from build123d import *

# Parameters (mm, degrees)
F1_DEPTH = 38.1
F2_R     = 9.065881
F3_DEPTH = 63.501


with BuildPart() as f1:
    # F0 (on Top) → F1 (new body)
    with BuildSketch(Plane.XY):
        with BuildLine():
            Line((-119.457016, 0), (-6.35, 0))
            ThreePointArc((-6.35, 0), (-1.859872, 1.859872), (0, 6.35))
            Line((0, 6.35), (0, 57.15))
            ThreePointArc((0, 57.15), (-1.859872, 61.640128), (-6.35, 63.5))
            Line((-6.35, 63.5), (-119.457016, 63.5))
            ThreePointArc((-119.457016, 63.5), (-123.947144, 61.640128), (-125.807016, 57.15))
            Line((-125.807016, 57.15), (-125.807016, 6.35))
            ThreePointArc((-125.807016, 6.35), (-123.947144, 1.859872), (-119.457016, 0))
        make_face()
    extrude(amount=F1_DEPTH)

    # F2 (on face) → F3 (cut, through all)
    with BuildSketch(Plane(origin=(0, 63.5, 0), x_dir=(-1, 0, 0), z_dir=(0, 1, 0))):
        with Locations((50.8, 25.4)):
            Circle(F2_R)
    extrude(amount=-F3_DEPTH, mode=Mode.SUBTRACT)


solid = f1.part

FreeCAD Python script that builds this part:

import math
import FreeCAD as App
import Part
import Sketcher
from FreeCAD import Vector
Q = App.Units.Quantity

doc = App.newDocument("Part")
params = doc.addObject("Spreadsheet::Sheet", "Params")
for row, (alias, value) in enumerate([
    ("sketch1_height", "2 in"),
    ("sketch1_radius", "0.25 in"),
    ("pad1_length", "1.5 in"),
], start=1):
    params.set(f"A{row}", alias)
    params.set(f"B{row}", "=" + value)
    params.setAlias(f"B{row}", alias)

body = doc.addObject("PartDesign::Body", "Body")

sketch1 = body.newObject("Sketcher::SketchObject", "Sketch")
sketch1.AttachmentSupport = (doc.getObject("XY_Plane"), [""])
sketch1.MapMode = "FlatFace"
sketch1.addGeometry(Part.LineSegment(Vector(-119, 0, 0), Vector(-6, 0, 0)), False)
sketch1.addGeometry(Part.ArcOfCircle(Part.Circle(Vector(-6, 6, 0), Vector(0, 0, 1), 6), math.radians(-90), math.radians(0)), False)
sketch1.addGeometry(Part.LineSegment(Vector(0, 6, 0), Vector(0, 57, 0)), False)
sketch1.addGeometry(Part.ArcOfCircle(Part.Circle(Vector(-6, 57, 0), Vector(0, 0, 1), 6), math.radians(0), math.radians(90)), False)
sketch1.addGeometry(Part.LineSegment(Vector(-6, 64, 0), Vector(-119, 64, 0)), False)
sketch1.addGeometry(Part.ArcOfCircle(Part.Circle(Vector(-119, 57, 0), Vector(0, 0, 1), 6), math.radians(90), math.radians(180)), False)
sketch1.addGeometry(Part.LineSegment(Vector(-126, 57, 0), Vector(-126, 6, 0)), False)
sketch1.addGeometry(Part.ArcOfCircle(Part.Circle(Vector(-119, 6, 0), Vector(0, 0, 1), 6), math.radians(-180), math.radians(-90)), False)
sketch1.addConstraint(Sketcher.Constraint("Tangent", 0, 2, 1, 1))
sketch1.addConstraint(Sketcher.Constraint("Tangent", 1, 2, 2, 1))
sketch1.addConstraint(Sketcher.Constraint("Tangent", 2, 2, 3, 1))
sketch1.addConstraint(Sketcher.Constraint("Tangent", 3, 2, 4, 1))
sketch1.addConstraint(Sketcher.Constraint("Tangent", 4, 2, 5, 1))
sketch1.addConstraint(Sketcher.Constraint("Tangent", 5, 2, 6, 1))
sketch1.addConstraint(Sketcher.Constraint("Tangent", 6, 2, 7, 1))
sketch1.addConstraint(Sketcher.Constraint("Tangent", 7, 2, 0, 1))
sketch1.addConstraint(Sketcher.Constraint("Horizontal", 0))
sketch1.addConstraint(Sketcher.Constraint("Vertical", 2))
sketch1.addConstraint(Sketcher.Constraint("Horizontal", 4))
sketch1.addConstraint(Sketcher.Constraint("Vertical", 6))
sketch1.addConstraint(Sketcher.Constraint("Equal", 1, 3))
sketch1.addConstraint(Sketcher.Constraint("Equal", 3, 5))
sketch1.addConstraint(Sketcher.Constraint("Equal", 5, 7))
sketch1.addConstraint(Sketcher.Constraint("PointOnObject", 0, 2, -1))
sketch1.addConstraint(Sketcher.Constraint("PointOnObject", 1, 2, -2))
sketch1.addConstraint(Sketcher.Constraint("DistanceY", 2, 1, 2, 2, Q("2 in")))
sketch1.addConstraint(Sketcher.Constraint("Radius", 1, Q("0.25 in")))
sketch1.addConstraint(Sketcher.Constraint("DistanceX", 0, 1, 0, 2, Q("113.107016 mm")))
sketch1.setExpression("Constraints[17]", "Params.sketch1_height")
sketch1.setExpression("Constraints[18]", "Params.sketch1_radius")
pad1 = body.newObject("PartDesign::Pad", "Pad")
pad1.Profile = sketch1
pad1.setExpression("Length", "Params.pad1_length")

sketch2 = body.newObject("Sketcher::SketchObject", "Sketch001")
sketch2.AttachmentSupport = (doc.getObject("XZ_Plane"), [""])
sketch2.MapMode = "FlatFace"
sketch2.AttachmentOffset = App.Placement(Vector(0, 0, -2.5 * 25.4), App.Rotation())
sketch2.addGeometry(Part.Circle(Vector(-51, 25, 0), Vector(0, 0, 1), 9), False)
sketch2.addConstraint(Sketcher.Constraint("DistanceX", 0, 3, -1, 1, Q("2 in")))
sketch2.addConstraint(Sketcher.Constraint("DistanceY", -1, 1, 0, 3, Q("1 in")))
sketch2.addConstraint(Sketcher.Constraint("Diameter", 0, Q("18.131762 mm")))
pocket1 = body.newObject("PartDesign::Pocket", "Pocket")
pocket1.Profile = sketch2
pocket1.Type = "ThroughAll"
pocket1.Reversed = True

doc.recompute()
